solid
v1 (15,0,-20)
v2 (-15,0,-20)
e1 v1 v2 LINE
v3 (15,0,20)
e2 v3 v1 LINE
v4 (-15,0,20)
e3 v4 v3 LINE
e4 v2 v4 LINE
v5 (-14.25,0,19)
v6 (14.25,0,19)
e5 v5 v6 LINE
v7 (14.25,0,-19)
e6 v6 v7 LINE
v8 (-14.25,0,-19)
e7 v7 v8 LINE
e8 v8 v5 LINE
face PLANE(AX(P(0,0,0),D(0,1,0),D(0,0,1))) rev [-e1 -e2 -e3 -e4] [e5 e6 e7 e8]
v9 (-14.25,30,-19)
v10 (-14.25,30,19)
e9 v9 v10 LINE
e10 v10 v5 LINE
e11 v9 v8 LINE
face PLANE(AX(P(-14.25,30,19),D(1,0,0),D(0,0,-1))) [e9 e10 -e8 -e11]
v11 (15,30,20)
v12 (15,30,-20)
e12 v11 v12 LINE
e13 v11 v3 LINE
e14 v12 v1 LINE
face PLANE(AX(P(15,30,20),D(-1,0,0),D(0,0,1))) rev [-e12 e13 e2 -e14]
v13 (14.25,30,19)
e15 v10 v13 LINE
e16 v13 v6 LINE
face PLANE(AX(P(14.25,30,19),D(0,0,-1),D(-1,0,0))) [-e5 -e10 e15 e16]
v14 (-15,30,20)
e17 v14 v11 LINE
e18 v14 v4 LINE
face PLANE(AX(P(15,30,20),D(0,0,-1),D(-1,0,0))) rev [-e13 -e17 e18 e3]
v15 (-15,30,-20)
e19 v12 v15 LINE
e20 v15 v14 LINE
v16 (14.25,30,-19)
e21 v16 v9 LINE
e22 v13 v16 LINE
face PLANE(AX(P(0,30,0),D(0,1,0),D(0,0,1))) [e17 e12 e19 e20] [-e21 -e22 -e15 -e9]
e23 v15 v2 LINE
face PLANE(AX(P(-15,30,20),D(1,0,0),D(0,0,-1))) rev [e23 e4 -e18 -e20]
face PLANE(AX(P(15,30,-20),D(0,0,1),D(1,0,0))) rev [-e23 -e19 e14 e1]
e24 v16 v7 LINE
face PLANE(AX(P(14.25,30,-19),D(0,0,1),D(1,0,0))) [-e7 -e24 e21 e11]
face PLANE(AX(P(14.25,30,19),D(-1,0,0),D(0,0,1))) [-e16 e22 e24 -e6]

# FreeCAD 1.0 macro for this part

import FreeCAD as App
import Part
import Sketcher

V = App.Vector
Q = App.Units.Quantity

doc = App.newDocument("Part")
body = doc.addObject("PartDesign::Body", "Body")

sketch1 = body.newObject("Sketcher::SketchObject", "Sketch")
sketch1.AttachmentSupport = (doc.getObject("XZ_Plane"), [""])
sketch1.MapMode = "FlatFace"
sketch1.addGeometry(Part.LineSegment(V(-15, -20, 0), V(-15, 20, 0)), False)
sketch1.addGeometry(Part.LineSegment(V(-15, 20, 0), V(15, 20, 0)), False)
sketch1.addGeometry(Part.LineSegment(V(15, 20, 0), V(15, -20, 0)), False)
sketch1.addGeometry(Part.LineSegment(V(15, -20, 0), V(-15, -20, 0)), False)
sketch1.addGeometry(Part.LineSegment(V(14, 19, 0), V(-14, 19, 0)), False)
sketch1.addGeometry(Part.LineSegment(V(-14, 19, 0), V(-14, -19, 0)), False)
sketch1.addGeometry(Part.LineSegment(V(-14, -19, 0), V(14, -19, 0)), False)
sketch1.addGeometry(Part.LineSegment(V(14, -19, 0), V(14, 19, 0)), False)
sketch1.addConstraint(Sketcher.Constraint("Coincident", 0, 2, 1, 1))
sketch1.addConstraint(Sketcher.Constraint("Coincident", 1, 2, 2, 1))
sketch1.addConstraint(Sketcher.Constraint("Coincident", 2, 2, 3, 1))
sketch1.addConstraint(Sketcher.Constraint("Coincident", 3, 2, 0, 1))
sketch1.addConstraint(Sketcher.Constraint("Coincident", 4, 2, 5, 1))
sketch1.addConstraint(Sketcher.Constraint("Coincident", 5, 2, 6, 1))
sketch1.addConstraint(Sketcher.Constraint("Coincident", 6, 2, 7, 1))
sketch1.addConstraint(Sketcher.Constraint("Coincident", 7, 2, 4, 1))
sketch1.addConstraint(Sketcher.Constraint("Vertical", 0))
sketch1.addConstraint(Sketcher.Constraint("Horizontal", 1))
sketch1.addConstraint(Sketcher.Constraint("Vertical", 2))
sketch1.addConstraint(Sketcher.Constraint("Horizontal", 3))
sketch1.addConstraint(Sketcher.Constraint("Horizontal", 4))
sketch1.addConstraint(Sketcher.Constraint("Vertical", 5))
sketch1.addConstraint(Sketcher.Constraint("Horizontal", 6))
sketch1.addConstraint(Sketcher.Constraint("Vertical", 7))
sketch1.addConstraint(Sketcher.Constraint("Symmetric", 0, 2, 2, 2, -1, 1))
sketch1.addConstraint(Sketcher.Constraint("Symmetric", 4, 2, 6, 2, -1, 1))
sketch1.addConstraint(Sketcher.Constraint("DistanceX", 1, 1, 1, 2, Q("30 mm")))
sketch1.addConstraint(Sketcher.Constraint("DistanceY", 0, 1, 0, 2, Q("40 mm")))
sketch1.addConstraint(Sketcher.Constraint("DistanceY", 5, 2, 5, 1, Q("38 mm")))
sketch1.addConstraint(Sketcher.Constraint("DistanceX", 4, 2, 4, 1, Q("28.5 mm")))
pad1 = body.newObject("PartDesign::Pad", "Pad")
pad1.Profile = sketch1
pad1.Length = 30
pad1.Reversed = True

doc.recompute()
